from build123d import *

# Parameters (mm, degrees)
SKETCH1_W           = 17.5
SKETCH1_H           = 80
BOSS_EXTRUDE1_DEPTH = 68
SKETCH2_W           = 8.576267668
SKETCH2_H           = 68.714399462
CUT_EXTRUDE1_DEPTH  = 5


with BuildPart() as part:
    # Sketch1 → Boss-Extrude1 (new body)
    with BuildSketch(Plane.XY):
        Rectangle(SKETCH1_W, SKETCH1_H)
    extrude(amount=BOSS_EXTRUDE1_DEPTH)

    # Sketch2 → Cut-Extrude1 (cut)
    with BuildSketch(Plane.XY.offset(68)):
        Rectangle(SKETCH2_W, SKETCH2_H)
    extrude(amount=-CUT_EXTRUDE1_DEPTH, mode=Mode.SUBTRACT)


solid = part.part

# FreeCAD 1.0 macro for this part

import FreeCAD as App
import Part
import Sketcher
from FreeCAD import Vector

doc = App.newDocument("Part")
body = doc.addObject("PartDesign::Body", "Body")

# Sketch on XY plane
sketch1 = doc.addObject("Sketcher::SketchObject", "Sketch")
body.addObject(sketch1)
sketch1.AttachmentSupport = (doc.XY_Plane, [""])
sketch1.MapMode = "FlatFace"
sketch1.addGeometry([
    Part.LineSegment(Vector(-9, 40, 0), Vector(-9, -40, 0)),
    Part.LineSegment(Vector(-9, -40, 0), Vector(9, -40, 0)),
    Part.LineSegment(Vector(9, -40, 0), Vector(9, 40, 0)),
    Part.LineSegment(Vector(9, 40, 0), Vector(-9, 40, 0)),
], False)
sketch1.addConstraint([
    Sketcher.Constraint("Coincident", 0, 2, 1, 1),
    Sketcher.Constraint("Coincident", 1, 2, 2, 1),
    Sketcher.Constraint("Coincident", 2, 2, 3, 1),
    Sketcher.Constraint("Coincident", 3, 2, 0, 1),
    Sketcher.Constraint("Vertical", 0),
    Sketcher.Constraint("Horizontal", 1),
    Sketcher.Constraint("Vertical", 2),
    Sketcher.Constraint("Horizontal", 3),
    Sketcher.Constraint("Symmetric", 0, 2, 2, 2, -1, 1),
    Sketcher.Constraint("DistanceY", 0, 2, 0, 1, 80.0),
    Sketcher.Constraint("DistanceX", 1, 1, 1, 2, 17.5),
])
pad1 = doc.addObject("PartDesign::Pad", "Pad")
body.addObject(pad1)
pad1.Profile = sketch1
pad1.Length = 68

# Sketch on XY plane
sketch2 = doc.addObject("Sketcher::SketchObject", "Sketch001")
body.addObject(sketch2)
sketch2.AttachmentSupport = (doc.XY_Plane, [""])
sketch2.MapMode = "FlatFace"
sketch2.AttachmentOffset = App.Placement(Vector(0, 0, 68), App.Rotation())
sketch2.addGeometry([
    Part.LineSegment(Vector(-4, 34, 0), Vector(-4, -34, 0)),
    Part.LineSegment(Vector(-4, -34, 0), Vector(4, -34, 0)),
    Part.LineSegment(Vector(4, -34, 0), Vector(4, 34, 0)),
    Part.LineSegment(Vector(4, 34, 0), Vector(-4, 34, 0)),
], False)
sketch2.addConstraint([
    Sketcher.Constraint("Coincident", 0, 2, 1, 1),
    Sketcher.Constraint("Coincident", 1, 2, 2, 1),
    Sketcher.Constraint("Coincident", 2, 2, 3, 1),
    Sketcher.Constraint("Coincident", 3, 2, 0, 1),
    Sketcher.Constraint("Vertical", 0),
    Sketcher.Constraint("Horizontal", 1),
    Sketcher.Constraint("Vertical", 2),
    Sketcher.Constraint("Horizontal", 3),
    Sketcher.Constraint("Symmetric", 0, 2, 2, 2, -1, 1),
    Sketcher.Constraint("DistanceY", 0, 2, 0, 1, 68.714399),
    Sketcher.Constraint("DistanceX", 1, 1, 1, 2, 8.576268),
])
pocket1 = doc.addObject("PartDesign::Pocket", "Pocket")
body.addObject(pocket1)
pocket1.Profile = sketch2
pocket1.Length = 5

doc.recompute()
